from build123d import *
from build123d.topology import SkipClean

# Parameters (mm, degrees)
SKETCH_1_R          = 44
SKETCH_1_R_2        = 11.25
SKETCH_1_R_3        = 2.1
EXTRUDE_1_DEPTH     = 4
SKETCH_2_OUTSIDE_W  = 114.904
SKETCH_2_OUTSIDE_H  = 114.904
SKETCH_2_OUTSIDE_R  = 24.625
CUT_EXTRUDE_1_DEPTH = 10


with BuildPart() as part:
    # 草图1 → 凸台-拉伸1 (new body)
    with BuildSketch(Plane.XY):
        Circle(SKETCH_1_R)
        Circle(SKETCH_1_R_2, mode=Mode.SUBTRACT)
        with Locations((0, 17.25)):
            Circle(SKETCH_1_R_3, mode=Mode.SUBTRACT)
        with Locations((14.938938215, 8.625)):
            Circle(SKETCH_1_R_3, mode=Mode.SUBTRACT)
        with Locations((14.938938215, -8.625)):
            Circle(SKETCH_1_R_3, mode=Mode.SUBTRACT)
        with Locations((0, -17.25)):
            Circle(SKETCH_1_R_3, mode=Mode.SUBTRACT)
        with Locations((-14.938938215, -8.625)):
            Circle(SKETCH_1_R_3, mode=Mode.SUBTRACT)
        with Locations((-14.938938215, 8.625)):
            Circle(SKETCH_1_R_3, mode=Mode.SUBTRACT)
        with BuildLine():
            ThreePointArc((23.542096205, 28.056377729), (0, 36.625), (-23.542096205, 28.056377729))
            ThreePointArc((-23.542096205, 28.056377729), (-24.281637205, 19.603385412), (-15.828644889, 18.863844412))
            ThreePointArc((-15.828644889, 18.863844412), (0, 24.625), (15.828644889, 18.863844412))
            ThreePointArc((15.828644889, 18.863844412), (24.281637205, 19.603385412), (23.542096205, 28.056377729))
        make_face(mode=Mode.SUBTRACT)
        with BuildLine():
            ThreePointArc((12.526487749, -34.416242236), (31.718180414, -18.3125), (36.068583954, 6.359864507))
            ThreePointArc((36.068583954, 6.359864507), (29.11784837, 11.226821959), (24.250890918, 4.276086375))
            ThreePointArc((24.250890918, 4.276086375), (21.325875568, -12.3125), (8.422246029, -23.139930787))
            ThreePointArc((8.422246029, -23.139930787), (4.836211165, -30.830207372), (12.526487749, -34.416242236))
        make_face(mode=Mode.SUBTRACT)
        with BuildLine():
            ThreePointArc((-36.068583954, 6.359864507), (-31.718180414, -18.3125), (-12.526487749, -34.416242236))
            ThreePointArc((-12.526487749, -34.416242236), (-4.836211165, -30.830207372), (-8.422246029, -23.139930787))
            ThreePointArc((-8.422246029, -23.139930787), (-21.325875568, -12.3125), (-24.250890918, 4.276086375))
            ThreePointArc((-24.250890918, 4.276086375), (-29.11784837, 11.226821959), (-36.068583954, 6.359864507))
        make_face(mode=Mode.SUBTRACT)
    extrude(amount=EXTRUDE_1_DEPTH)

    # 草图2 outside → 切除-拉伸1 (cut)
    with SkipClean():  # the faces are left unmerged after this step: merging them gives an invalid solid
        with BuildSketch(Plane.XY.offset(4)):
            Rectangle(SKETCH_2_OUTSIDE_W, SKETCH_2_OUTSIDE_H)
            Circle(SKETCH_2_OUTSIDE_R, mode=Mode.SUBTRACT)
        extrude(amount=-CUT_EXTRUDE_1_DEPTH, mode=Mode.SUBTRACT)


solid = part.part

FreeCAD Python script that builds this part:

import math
import FreeCAD as App
import Part
import Sketcher
from FreeCAD import Vector
Q = App.Units.Quantity

doc = App.newDocument("Part")
body = doc.addObject("PartDesign::Body", "Body")

# Sketch on XY plane
sketch1 = doc.addObject("Sketcher::SketchObject", "Sketch")
body.addObject(sketch1)
sketch1.AttachmentSupport = (doc.XY_Plane, [""])
sketch1.MapMode = "FlatFace"
sketch1.addGeometry([
    Part.Circle(Vector(0, 0, 0), Vector(0, 0, 1), 44),  # 0
    Part.ArcOfCircle(Part.Circle(Vector(0, 0, 0), Vector(0, 0, 1), 36.625), math.radians(170), math.radians(250)),  # 1
    Part.ArcOfCircle(Part.Circle(Vector(-30.159737, 5.317975, 0), Vector(0, 0, 1), 6), math.radians(-10), math.radians(170)),  # 2
    Part.ArcOfCircle(Part.Circle(Vector(0, 0, 0), Vector(0, 0, 1), 24.625), math.radians(170), math.radians(250)),  # 3
    Part.ArcOfCircle(Part.Circle(Vector(-10.474367, -28.778087, 0), Vector(0, 0, 1), 6), math.radians(-110), math.radians(70)),  # 4
    Part.Circle(Vector(-14.938938, -8.625, 0), Vector(0, 0, 1), 2.1),  # 5
    Part.Circle(Vector(0, -17.25, 0), Vector(0, 0, 1), 2.1),  # 6
    Part.Circle(Vector(14.938938, -8.625, 0), Vector(0, 0, 1), 2.1),  # 7
    Part.Circle(Vector(0, 0, 0), Vector(0, 0, 1), 11.25),  # 8
    Part.ArcOfCircle(Part.Circle(Vector(0, 0, 0), Vector(0, 0, 1), 36.625), math.radians(-70), math.radians(10)),  # 9
    Part.ArcOfCircle(Part.Circle(Vector(10.474367, -28.778087, 0), Vector(0, 0, 1), 6), math.radians(110), math.radians(290)),  # 10
    Part.ArcOfCircle(Part.Circle(Vector(0, 0, 0), Vector(0, 0, 1), 24.625), math.radians(-70), math.radians(10)),  # 11
    Part.ArcOfCircle(Part.Circle(Vector(30.159737, 5.317975, 0), Vector(0, 0, 1), 6), math.radians(10), math.radians(190)),  # 12
    Part.Circle(Vector(-14.938938, 8.625, 0), Vector(0, 0, 1), 2.1),  # 13
    Part.Circle(Vector(14.938938, 8.625, 0), Vector(0, 0, 1), 2.1),  # 14
    Part.Circle(Vector(0, 17.25, 0), Vector(0, 0, 1), 2.1),  # 15
    Part.ArcOfCircle(Part.Circle(Vector(0, 0, 0), Vector(0, 0, 1), 36.625), math.radians(50), math.radians(130)),  # 16
    Part.ArcOfCircle(Part.Circle(Vector(19.685371, 23.460111, 0), Vector(0, 0, 1), 6), math.radians(-130), math.radians(50)),  # 17
    Part.ArcOfCircle(Part.Circle(Vector(0, 0, 0), Vector(0, 0, 1), 24.625), math.radians(50), math.radians(130)),  # 18
    Part.ArcOfCircle(Part.Circle(Vector(-19.685371, 23.460111, 0), Vector(0, 0, 1), 6), math.radians(130), math.radians(310)),  # 19
], False)
sketch1.addConstraint([
    Sketcher.Constraint("Tangent", 1, 1, 2, 2),
    Sketcher.Constraint("Tangent", 2, 1, 3, 1),
    Sketcher.Constraint("Tangent", 3, 2, 4, 2),
    Sketcher.Constraint("Tangent", 4, 1, 1, 2),
    Sketcher.Constraint("Tangent", 9, 1, 10, 2),
    Sketcher.Constraint("Tangent", 10, 1, 11, 1),
    Sketcher.Constraint("Tangent", 11, 2, 12, 2),
    Sketcher.Constraint("Tangent", 12, 1, 9, 2),
    Sketcher.Constraint("Tangent", 16, 1, 17, 2),
    Sketcher.Constraint("Tangent", 17, 1, 18, 1),
    Sketcher.Constraint("Tangent", 18, 2, 19, 2),
    Sketcher.Constraint("Tangent", 19, 1, 16, 2),
    Sketcher.Constraint("Coincident", 0, 3, -1, 1),
    Sketcher.Constraint("Coincident", 1, 3, -1, 1),
    Sketcher.Constraint("Coincident", 3, 3, -1, 1),
    Sketcher.Constraint("Coincident", 8, 3, -1, 1),
    Sketcher.Constraint("Coincident", 9, 3, -1, 1),
    Sketcher.Constraint("Coincident", 11, 3, -1, 1),
    Sketcher.Constraint("Coincident", 16, 3, -1, 1),
    Sketcher.Constraint("Coincident", 18, 3, -1, 1),
    Sketcher.Constraint("Equal", 5, 6),
    Sketcher.Constraint("Equal", 6, 7),
    Sketcher.Constraint("Equal", 1, 9),
    Sketcher.Constraint("Equal", 4, 10),
    Sketcher.Constraint("Equal", 7, 13),
    Sketcher.Constraint("Equal", 13, 14),
    Sketcher.Constraint("Equal", 14, 15),
    Sketcher.Constraint("Equal", 9, 16),
    Sketcher.Constraint("Equal", 12, 17),
    Sketcher.Constraint("Symmetric", 7, 3, 13, 3, -1, 1),
    Sketcher.Constraint("Symmetric", 5, 3, 14, 3, -1, 1),
    Sketcher.Constraint("Symmetric", 6, 3, 15, 3, -1, 1),
    Sketcher.Constraint("Symmetric", 5, 3, 7, 3, -2),
    Sketcher.Constraint("PointOnObject", 6, 3, -2),
    Sketcher.Constraint("Horizontal", 4, 3, 10, 3),
    Sketcher.Constraint("Horizontal", 2, 3, 12, 3),
    Sketcher.Constraint("Horizontal", 17, 3, 19, 3),
    Sketcher.Constraint("Diameter", 0, Q("88 mm")),
    Sketcher.Constraint("Radius", 2, Q("6 mm")),
    Sketcher.Constraint("Diameter", 5, Q("4.2 mm")),
    Sketcher.Constraint("Diameter", 8, Q("22.5 mm")),
    Sketcher.Constraint("Radius", 1, Q("36.625 mm")),
    Sketcher.Constraint("DistanceY", 6, 3, -1, 1, Q("17.25 mm")),
    Sketcher.Constraint("DistanceY", 5, 3, -1, 1, Q("8.625 mm")),
    Sketcher.Constraint("DistanceX", 2, 3, 5, 3, Q("15.220799 mm")),
    Sketcher.Constraint("DistanceX", 5, 3, -1, 1, Q("14.938938 mm")),
    Sketcher.Constraint("DistanceX", -1, 1, 17, 3, Q("19.685371 mm")),
    Sketcher.Constraint("DistanceY", 3, 2, -1, 1, Q("23.139931 mm")),
])
pad1 = doc.addObject("PartDesign::Pad", "Pad")
body.addObject(pad1)
pad1.Profile = sketch1
pad1.Length = 4

# Sketch on XY plane
sketch2 = doc.addObject("Sketcher::SketchObject", "Sketch001")
body.addObject(sketch2)
sketch2.AttachmentSupport = (doc.XY_Plane, [""])
sketch2.MapMode = "FlatFace"
sketch2.AttachmentOffset = App.Placement(Vector(0, 0, 4), App.Rotation())
sketch2.addGeometry([
    Part.LineSegment(Vector(-57.452, 57.452, 0), Vector(-57.452, -57.452, 0)),  # 0
    Part.LineSegment(Vector(-57.452, -57.452, 0), Vector(57.452, -57.452, 0)),  # 1
    Part.LineSegment(Vector(57.452, -57.452, 0), Vector(57.452, 57.452, 0)),  # 2
    Part.LineSegment(Vector(57.452, 57.452, 0), Vector(-57.452, 57.452, 0)),  # 3
    Part.Circle(Vector(0, 0, 0), Vector(0, 0, 1), 24.625),  # 4
], False)
sketch2.addConstraint([
    Sketcher.Constraint("Coincident", 0, 2, 1, 1),
    Sketcher.Constraint("Coincident", 1, 2, 2, 1),
    Sketcher.Constraint("Coincident", 2, 2, 3, 1),
    Sketcher.Constraint("Coincident", 3, 2, 0, 1),
    Sketcher.Constraint("Vertical", 0),
    Sketcher.Constraint("Horizontal", 1),
    Sketcher.Constraint("Vertical", 2),
    Sketcher.Constraint("Horizontal", 3),
    Sketcher.Constraint("Coincident", 4, 3, -1, 1),
    Sketcher.Constraint("Symmetric", 0, 2, 2, 2, -1, 1),
    Sketcher.Constraint("Equal", 3, 0),
    Sketcher.Constraint("Diameter", 4, Q("49.25 mm")),
    Sketcher.Constraint("DistanceX", 1, 1, 1, 2, Q("114.904 mm")),
])
pocket1 = doc.addObject("PartDesign::Pocket", "Pocket")
body.addObject(pocket1)
pocket1.Profile = sketch2
pocket1.Length = 10

doc.recompute()
